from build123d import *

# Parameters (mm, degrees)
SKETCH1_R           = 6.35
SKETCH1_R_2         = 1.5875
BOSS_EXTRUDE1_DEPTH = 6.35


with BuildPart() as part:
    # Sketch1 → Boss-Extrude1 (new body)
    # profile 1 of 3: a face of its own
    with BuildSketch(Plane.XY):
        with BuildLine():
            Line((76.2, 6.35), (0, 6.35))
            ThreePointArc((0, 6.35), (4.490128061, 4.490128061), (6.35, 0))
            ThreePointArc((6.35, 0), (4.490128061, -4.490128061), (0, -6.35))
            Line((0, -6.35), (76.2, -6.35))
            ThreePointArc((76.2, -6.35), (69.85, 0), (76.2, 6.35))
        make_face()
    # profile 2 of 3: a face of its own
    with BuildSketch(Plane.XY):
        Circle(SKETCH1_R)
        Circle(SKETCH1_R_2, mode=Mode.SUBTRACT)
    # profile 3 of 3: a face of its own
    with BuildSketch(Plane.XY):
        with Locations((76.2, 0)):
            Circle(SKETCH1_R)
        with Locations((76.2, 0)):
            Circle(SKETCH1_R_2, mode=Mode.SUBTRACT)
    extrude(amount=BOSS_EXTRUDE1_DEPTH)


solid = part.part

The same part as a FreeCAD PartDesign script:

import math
import FreeCAD as App
import Part
import Sketcher
from FreeCAD import Vector
Q = App.Units.Quantity

doc = App.newDocument("Part")
params = doc.addObject("Spreadsheet::Sheet", "Params")
for row, (alias, value) in enumerate([
    ("sketch1_width", "3 in"),
    ("sketch1_radius", "0.25 in"),
    ("sketch1_diameter", "0.125 in"),
    ("pad1_length", "0.25 in"),
], start=1):
    params.set(f"A{row}", alias)
    params.set(f"B{row}", "=" + value)
    params.setAlias(f"B{row}", alias)

body = doc.addObject("PartDesign::Body", "Body")

# Sketch on XY plane
sketch1 = body.newObject("Sketcher::SketchObject", "Sketch")
sketch1.AttachmentSupport = (doc.getObject("XY_Plane"), [""])
sketch1.MapMode = "FlatFace"
sketch1.addGeometry([
    Part.LineSegment(Vector(76.2, 6.3, 0), Vector(0, 6.3, 0)),  # 0
    Part.ArcOfCircle(Part.Circle(Vector(0, 0, 0), Vector(0, 0, 1), 6.3), math.radians(90), math.radians(270)),  # 1
    Part.LineSegment(Vector(0, -6.3, 0), Vector(76.2, -6.3, 0)),  # 2
    Part.ArcOfCircle(Part.Circle(Vector(76.2, 0, 0), Vector(0, 0, 1), 6.3), math.radians(-90), math.radians(90)),  # 3
    Part.Circle(Vector(0, 0, 0), Vector(0, 0, 1), 1.6),  # 4
    Part.Circle(Vector(76.2, 0, 0), Vector(0, 0, 1), 1.6),  # 5
], False)
sketch1.addConstraint([
    Sketcher.Constraint("Tangent", 0, 2, 1, 1),
    Sketcher.Constraint("Tangent", 1, 2, 2, 1),
    Sketcher.Constraint("Tangent", 2, 2, 3, 1),
    Sketcher.Constraint("Tangent", 3, 2, 0, 1),
    Sketcher.Constraint("Horizontal", 0),
    Sketcher.Constraint("Horizontal", 2),
    Sketcher.Constraint("Coincident", 1, 3, -1, 1),
    Sketcher.Constraint("Coincident", 4, 3, -1, 1),
    Sketcher.Constraint("Coincident", 5, 3, 3, 3),
    Sketcher.Constraint("Equal", 4, 5),
    Sketcher.Constraint("DistanceX", 0, 2, 0, 1, Q("3 in")),
    Sketcher.Constraint("Radius", 1, Q("0.25 in")),
    Sketcher.Constraint("Diameter", 4, Q("0.125 in")),
])
sketch1.setExpression("Constraints[10]", "Params.sketch1_width")
sketch1.setExpression("Constraints[11]", "Params.sketch1_radius")
sketch1.setExpression("Constraints[12]", "Params.sketch1_diameter")
pad1 = body.newObject("PartDesign::Pad", "Pad")
pad1.Profile = sketch1
pad1.setExpression("Length", "Params.pad1_length")

doc.recompute()
